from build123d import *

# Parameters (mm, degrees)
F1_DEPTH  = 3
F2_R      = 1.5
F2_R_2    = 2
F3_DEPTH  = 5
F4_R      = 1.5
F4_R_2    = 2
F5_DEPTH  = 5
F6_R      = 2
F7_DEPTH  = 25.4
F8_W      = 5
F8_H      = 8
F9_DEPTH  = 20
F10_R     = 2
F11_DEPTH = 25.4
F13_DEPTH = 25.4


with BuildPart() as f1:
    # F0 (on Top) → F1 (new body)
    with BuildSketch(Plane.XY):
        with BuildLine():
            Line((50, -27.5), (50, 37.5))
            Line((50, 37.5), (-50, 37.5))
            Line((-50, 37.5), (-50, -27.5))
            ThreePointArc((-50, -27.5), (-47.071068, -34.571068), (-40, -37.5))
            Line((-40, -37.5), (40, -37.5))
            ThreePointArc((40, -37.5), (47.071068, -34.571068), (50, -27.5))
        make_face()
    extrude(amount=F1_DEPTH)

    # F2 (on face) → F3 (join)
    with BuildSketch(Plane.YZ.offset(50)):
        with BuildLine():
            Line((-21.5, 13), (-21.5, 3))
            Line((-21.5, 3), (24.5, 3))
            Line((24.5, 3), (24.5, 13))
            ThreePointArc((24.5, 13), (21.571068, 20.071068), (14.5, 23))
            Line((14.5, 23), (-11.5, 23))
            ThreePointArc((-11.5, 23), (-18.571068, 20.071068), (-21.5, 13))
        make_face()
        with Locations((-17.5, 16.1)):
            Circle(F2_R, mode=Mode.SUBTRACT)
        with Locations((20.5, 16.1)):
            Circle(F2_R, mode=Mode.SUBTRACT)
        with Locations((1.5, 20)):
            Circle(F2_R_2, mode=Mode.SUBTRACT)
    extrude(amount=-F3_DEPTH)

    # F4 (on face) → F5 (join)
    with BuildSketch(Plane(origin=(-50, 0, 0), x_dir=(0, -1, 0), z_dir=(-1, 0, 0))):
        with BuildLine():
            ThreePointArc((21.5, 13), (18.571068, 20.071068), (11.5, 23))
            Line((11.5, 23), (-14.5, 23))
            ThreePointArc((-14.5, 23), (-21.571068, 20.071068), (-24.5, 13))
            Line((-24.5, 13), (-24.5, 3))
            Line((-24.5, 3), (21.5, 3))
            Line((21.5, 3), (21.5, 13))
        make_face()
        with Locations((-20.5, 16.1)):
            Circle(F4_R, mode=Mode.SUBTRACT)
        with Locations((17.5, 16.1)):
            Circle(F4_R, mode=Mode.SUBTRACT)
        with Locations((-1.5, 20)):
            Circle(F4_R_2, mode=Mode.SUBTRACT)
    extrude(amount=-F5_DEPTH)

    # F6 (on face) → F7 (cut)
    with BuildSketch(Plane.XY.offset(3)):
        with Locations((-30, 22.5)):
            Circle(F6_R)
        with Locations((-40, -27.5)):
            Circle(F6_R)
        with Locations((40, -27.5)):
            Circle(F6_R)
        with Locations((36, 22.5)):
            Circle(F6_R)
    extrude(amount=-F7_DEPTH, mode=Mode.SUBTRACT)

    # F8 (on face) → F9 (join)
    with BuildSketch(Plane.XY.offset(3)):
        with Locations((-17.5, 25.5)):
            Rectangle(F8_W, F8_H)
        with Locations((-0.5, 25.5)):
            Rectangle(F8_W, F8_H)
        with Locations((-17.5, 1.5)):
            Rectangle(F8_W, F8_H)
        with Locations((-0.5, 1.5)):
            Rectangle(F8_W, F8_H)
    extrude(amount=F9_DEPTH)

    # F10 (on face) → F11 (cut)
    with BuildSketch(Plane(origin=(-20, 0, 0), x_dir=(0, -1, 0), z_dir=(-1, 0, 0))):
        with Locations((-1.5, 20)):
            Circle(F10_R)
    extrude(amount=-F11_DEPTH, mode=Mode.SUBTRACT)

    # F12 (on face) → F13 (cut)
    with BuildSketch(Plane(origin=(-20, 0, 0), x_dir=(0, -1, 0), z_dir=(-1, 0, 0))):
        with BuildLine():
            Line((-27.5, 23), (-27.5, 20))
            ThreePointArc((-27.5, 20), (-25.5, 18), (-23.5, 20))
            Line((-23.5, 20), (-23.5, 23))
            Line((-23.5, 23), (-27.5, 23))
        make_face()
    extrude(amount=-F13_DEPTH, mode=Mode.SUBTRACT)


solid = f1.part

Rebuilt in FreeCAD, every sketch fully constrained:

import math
import FreeCAD as App
import Part
import Sketcher
from FreeCAD import Vector
Q = App.Units.Quantity

doc = App.newDocument("Part")
body = doc.addObject("PartDesign::Body", "Body")

# Sketch on XY plane
sketch1 = doc.addObject("Sketcher::SketchObject", "Sketch")
body.addObject(sketch1)
sketch1.AttachmentSupport = (doc.XY_Plane, [""])
sketch1.MapMode = "FlatFace"
sketch1.addGeometry([
    Part.LineSegment(Vector(50, -28, 0), Vector(50, 38, 0)),  # 0
    Part.LineSegment(Vector(50, 38, 0), Vector(-50, 38, 0)),  # 1
    Part.LineSegment(Vector(-50, 38, 0), Vector(-50, -28, 0)),  # 2
    Part.ArcOfCircle(Part.Circle(Vector(-40, -28, 0), Vector(0, 0, 1), 10), math.radians(180), math.radians(270)),  # 3
    Part.LineSegment(Vector(-40, -38, 0), Vector(40, -38, 0)),  # 4
    Part.ArcOfCircle(Part.Circle(Vector(40, -28, 0), Vector(0, 0, 1), 10), math.radians(-90), math.radians(0)),  # 5
], False)
sketch1.addConstraint([
    Sketcher.Constraint("Coincident", 0, 2, 1, 1),
    Sketcher.Constraint("Coincident", 1, 2, 2, 1),
    Sketcher.Constraint("Tangent", 2, 2, 3, 1),
    Sketcher.Constraint("Tangent", 3, 2, 4, 1),
    Sketcher.Constraint("Tangent", 4, 2, 5, 1),
    Sketcher.Constraint("Tangent", 5, 2, 0, 1),
    Sketcher.Constraint("Vertical", 0),
    Sketcher.Constraint("Horizontal", 1),
    Sketcher.Constraint("Vertical", 2),
    Sketcher.Constraint("Horizontal", 4),
    Sketcher.Constraint("Equal", 3, 5),
    Sketcher.Constraint("Radius", 3, Q("9.999999 mm")),
    Sketcher.Constraint("DistanceX", 1, 2, 1, 1, Q("100 mm")),
    Sketcher.Constraint("DistanceY", 0, 1, 0, 2, Q("65 mm")),
    Sketcher.Constraint("DistanceX", 3, 3, -1, 1, Q("40.000001 mm")),
    Sketcher.Constraint("DistanceY", 3, 3, -1, 1, Q("27.500001 mm")),
])
pad1 = doc.addObject("PartDesign::Pad", "Pad")
body.addObject(pad1)
pad1.Profile = sketch1
pad1.Length = 3

# Sketch on YZ plane
sketch2 = doc.addObject("Sketcher::SketchObject", "Sketch001")
body.addObject(sketch2)
sketch2.AttachmentSupport = (doc.YZ_Plane, [""])
sketch2.MapMode = "FlatFace"
sketch2.AttachmentOffset = App.Placement(Vector(0, 0, 50), App.Rotation())
sketch2.addGeometry([
    Part.LineSegment(Vector(-21.5, 13, 0), Vector(-21.5, 3, 0)),  # 0
    Part.LineSegment(Vector(-21.5, 3, 0), Vector(24.5, 3, 0)),  # 1
    Part.LineSegment(Vector(24.5, 3, 0), Vector(24.5, 13, 0)),  # 2
    Part.ArcOfCircle(Part.Circle(Vector(14.5, 13, 0), Vector(0, 0, 1), 10), math.radians(0), math.radians(90)),  # 3
    Part.LineSegment(Vector(14.5, 23, 0), Vector(-11.5, 23, 0)),  # 4
    Part.ArcOfCircle(Part.Circle(Vector(-11.5, 13, 0), Vector(0, 0, 1), 10), math.radians(90), math.radians(180)),  # 5
    Part.Circle(Vector(-17.5, 16.1, 0), Vector(0, 0, 1), 1.5),  # 6
    Part.Circle(Vector(20.5, 16.1, 0), Vector(0, 0, 1), 1.5),  # 7
    Part.Circle(Vector(1.5, 20, 0), Vector(0, 0, 1), 2),  # 8
], False)
sketch2.addConstraint([
    Sketcher.Constraint("Coincident", 0, 2, 1, 1),
    Sketcher.Constraint("Coincident", 1, 2, 2, 1),
    Sketcher.Constraint("Tangent", 2, 2, 3, 1),
    Sketcher.Constraint("Tangent", 3, 2, 4, 1),
    Sketcher.Constraint("Tangent", 4, 2, 5, 1),
    Sketcher.Constraint("Tangent", 5, 2, 0, 1),
    Sketcher.Constraint("Vertical", 0),
    Sketcher.Constraint("Horizontal", 1),
    Sketcher.Constraint("Vertical", 2),
    Sketcher.Constraint("Horizontal", 4),
    Sketcher.Constraint("Equal", 3, 5),
    Sketcher.Constraint("Equal", 6, 7),
    Sketcher.Constraint("Horizontal", 6, 3, 7, 3),
    Sketcher.Constraint("Diameter", 6, Q("3 mm")),
    Sketcher.Constraint("Diameter", 8, Q("4 mm")),
    Sketcher.Constraint("Radius", 3, Q("9.999999 mm")),
    Sketcher.Constraint("DistanceX", 1, 1, 1, 2, Q("46 mm")),
    Sketcher.Constraint("DistanceY", 0, 2, 0, 1, Q("10 mm")),
    Sketcher.Constraint("DistanceY", -1, 1, 3, 3, Q("13.000001 mm")),
    Sketcher.Constraint("DistanceY", -1, 1, 8, 3, Q("20 mm")),
    Sketcher.Constraint("DistanceX", 6, 3, 5, 3, Q("5.999999 mm")),
    Sketcher.Constraint("DistanceX", 3, 3, 7, 3, Q("5.999999 mm")),
    Sketcher.Constraint("DistanceX", 8, 3, 3, 3, Q("13.000001 mm")),
    Sketcher.Constraint("DistanceX", -1, 1, 3, 3, Q("14.500001 mm")),
    Sketcher.Constraint("DistanceY", -1, 1, 6, 3, Q("16.1 mm")),
])
pad2 = doc.addObject("PartDesign::Pad", "Pad001")
body.addObject(pad2)
pad2.Profile = sketch2
pad2.Length = 5
pad2.Reversed = True

# Sketch on YZ plane
sketch3 = doc.addObject("Sketcher::SketchObject", "Sketch002")
body.addObject(sketch3)
sketch3.AttachmentSupport = (doc.YZ_Plane, [""])
sketch3.MapMode = "FlatFace"
sketch3.AttachmentOffset = App.Placement(Vector(0, 0, -50), App.Rotation())
sketch3.addGeometry([
    Part.ArcOfCircle(Part.Circle(Vector(-11.5, 13, 0), Vector(0, 0, 1), 10), math.radians(90), math.radians(180)),  # 0
    Part.LineSegment(Vector(-11.5, 23, 0), Vector(14.5, 23, 0)),  # 1
    Part.ArcOfCircle(Part.Circle(Vector(14.5, 13, 0), Vector(0, 0, 1), 10), math.radians(0), math.radians(90)),  # 2
    Part.LineSegment(Vector(24.5, 13, 0), Vector(24.5, 3, 0)),  # 3
    Part.LineSegment(Vector(24.5, 3, 0), Vector(-21.5, 3, 0)),  # 4
    Part.LineSegment(Vector(-21.5, 3, 0), Vector(-21.5, 13, 0)),  # 5
    Part.Circle(Vector(20.5, 16.1, 0), Vector(0, 0, 1), 1.5),  # 6
    Part.Circle(Vector(-17.5, 16.1, 0), Vector(0, 0, 1), 1.5),  # 7
    Part.Circle(Vector(1.5, 20, 0), Vector(0, 0, 1), 2),  # 8
], False)
sketch3.addConstraint([
    Sketcher.Constraint("Tangent", 0, 1, 1, 1),
    Sketcher.Constraint("Tangent", 1, 2, 2, 2),
    Sketcher.Constraint("Tangent", 2, 1, 3, 1),
    Sketcher.Constraint("Coincident", 3, 2, 4, 1),
    Sketcher.Constraint("Coincident", 4, 2, 5, 1),
    Sketcher.Constraint("Tangent", 5, 2, 0, 2),
    Sketcher.Constraint("Horizontal", 1),
    Sketcher.Constraint("Vertical", 3),
    Sketcher.Constraint("Horizontal", 4),
    Sketcher.Constraint("Vertical", 5),
    Sketcher.Constraint("Equal", 0, 2),
    Sketcher.Constraint("Equal", 6, 7),
    Sketcher.Constraint("Horizontal", 6, 3, 7, 3),
    Sketcher.Constraint("Diameter", 6, Q("3 mm")),
    Sketcher.Constraint("Diameter", 8, Q("4 mm")),
    Sketcher.Constraint("Radius", 0, Q("9.999999 mm")),
    Sketcher.Constraint("DistanceX", 1, 1, 1, 2, Q("26 mm")),
    Sketcher.Constraint("DistanceY", 3, 2, 3, 1, Q("10 mm")),
    Sketcher.Constraint("DistanceY", -1, 1, 0, 3, Q("13.000001 mm")),
    Sketcher.Constraint("DistanceY", -1, 1, 8, 3, Q("20 mm")),
    Sketcher.Constraint("DistanceX", 2, 3, 6, 3, Q("5.999999 mm")),
    Sketcher.Constraint("DistanceX", 7, 3, 0, 3, Q("5.999999 mm")),
    Sketcher.Constraint("DistanceX", 0, 3, 8, 3, Q("13.000001 mm")),
    Sketcher.Constraint("DistanceX", 0, 3, -1, 1, Q("11.500001 mm")),
    Sketcher.Constraint("DistanceY", -1, 1, 6, 3, Q("16.1 mm")),
])
pad3 = doc.addObject("PartDesign::Pad", "Pad002")
body.addObject(pad3)
pad3.Profile = sketch3
pad3.Length = 5

# Sketch on XY plane
sketch4 = doc.addObject("Sketcher::SketchObject", "Sketch003")
body.addObject(sketch4)
sketch4.AttachmentSupport = (doc.XY_Plane, [""])
sketch4.MapMode = "FlatFace"
sketch4.AttachmentOffset = App.Placement(Vector(0, 0, 3), App.Rotation())
sketch4.addGeometry([
    Part.Circle(Vector(-30, 22.5, 0), Vector(0, 0, 1), 2),
    Part.Circle(Vector(-40, -27.5, 0), Vector(0, 0, 1), 2),
    Part.Circle(Vector(40, -27.5, 0), Vector(0, 0, 1), 2),
    Part.Circle(Vector(36, 22.5, 0), Vector(0, 0, 1), 2),
], False)
sketch4.addConstraint([
    Sketcher.Constraint("Equal", 0, 1),
    Sketcher.Constraint("Equal", 1, 2),
    Sketcher.Constraint("Equal", 2, 3),
    Sketcher.Constraint("Symmetric", 1, 3, 2, 3, -2),
    Sketcher.Constraint("Horizontal", 0, 3, 3, 3),
    Sketcher.Constraint("Diameter", 0, Q("4 mm")),
    Sketcher.Constraint("DistanceX", 0, 3, -1, 1, Q("30 mm")),
    Sketcher.Constraint("DistanceX", 1, 3, -1, 1, Q("40 mm")),
    Sketcher.Constraint("DistanceX", -1, 1, 3, 3, Q("36 mm")),
    Sketcher.Constraint("DistanceY", 1, 3, 0, 3, Q("50 mm")),
    Sketcher.Constraint("DistanceY", -1, 1, 0, 3, Q("22.5 mm")),
])
pocket1 = doc.addObject("PartDesign::Pocket", "Pocket")
body.addObject(pocket1)
pocket1.Profile = sketch4
pocket1.Length = 25.4

# Sketch on XY plane
sketch5 = doc.addObject("Sketcher::SketchObject", "Sketch004")
body.addObject(sketch5)
sketch5.AttachmentSupport = (doc.XY_Plane, [""])
sketch5.MapMode = "FlatFace"
sketch5.AttachmentOffset = App.Placement(Vector(0, 0, 3), App.Rotation())
sketch5.addGeometry([
    Part.LineSegment(Vector(-20, 30, 0), Vector(-20, 22, 0)),  # 0
    Part.LineSegment(Vector(-20, 22, 0), Vector(-15, 22, 0)),  # 1
    Part.LineSegment(Vector(-15, 22, 0), Vector(-15, 30, 0)),  # 2
    Part.LineSegment(Vector(-15, 30, 0), Vector(-20, 30, 0)),  # 3
    Part.LineSegment(Vector(-3, 30, 0), Vector(-3, 22, 0)),  # 4
    Part.LineSegment(Vector(-3, 22, 0), Vector(2, 22, 0)),  # 5
    Part.LineSegment(Vector(2, 22, 0), Vector(2, 30, 0)),  # 6
    Part.LineSegment(Vector(2, 30, 0), Vector(-3, 30, 0)),  # 7
    Part.LineSegment(Vector(-20, 6, 0), Vector(-20, -2, 0)),  # 8
    Part.LineSegment(Vector(-20, -2, 0), Vector(-15, -2, 0)),  # 9
    Part.LineSegment(Vector(-15, -2, 0), Vector(-15, 6, 0)),  # 10
    Part.LineSegment(Vector(-15, 6, 0), Vector(-20, 6, 0)),  # 11
    Part.LineSegment(Vector(-3, 6, 0), Vector(-3, -2, 0)),  # 12
    Part.LineSegment(Vector(-3, -2, 0), Vector(2, -2, 0)),  # 13
    Part.LineSegment(Vector(2, -2, 0), Vector(2, 6, 0)),  # 14
    Part.LineSegment(Vector(2, 6, 0), Vector(-3, 6, 0)),  # 15
], False)
sketch5.addConstraint([
    Sketcher.Constraint("Coincident", 0, 2, 1, 1),
    Sketcher.Constraint("Coincident", 1, 2, 2, 1),
    Sketcher.Constraint("Coincident", 2, 2, 3, 1),
    Sketcher.Constraint("Coincident", 3, 2, 0, 1),
    Sketcher.Constraint("Coincident", 4, 2, 5, 1),
    Sketcher.Constraint("Coincident", 5, 2, 6, 1),
    Sketcher.Constraint("Coincident", 6, 2, 7, 1),
    Sketcher.Constraint("Coincident", 7, 2, 4, 1),
    Sketcher.Constraint("Coincident", 8, 2, 9, 1),
    Sketcher.Constraint("Coincident", 9, 2, 10, 1),
    Sketcher.Constraint("Coincident", 10, 2, 11, 1),
    Sketcher.Constraint("Coincident", 11, 2, 8, 1),
    Sketcher.Constraint("Coincident", 12, 2, 13, 1),
    Sketcher.Constraint("Coincident", 13, 2, 14, 1),
    Sketcher.Constraint("Coincident", 14, 2, 15, 1),
    Sketcher.Constraint("Coincident", 15, 2, 12, 1),
    Sketcher.Constraint("Vertical", 0),
    Sketcher.Constraint("Horizontal", 1),
    Sketcher.Constraint("Vertical", 2),
    Sketcher.Constraint("Horizontal", 3),
    Sketcher.Constraint("Vertical", 4),
    Sketcher.Constraint("Horizontal", 5),
    Sketcher.Constraint("Vertical", 6),
    Sketcher.Constraint("Horizontal", 7),
    Sketcher.Constraint("Vertical", 8),
    Sketcher.Constraint("Horizontal", 9),
    Sketcher.Constraint("Vertical", 10),
    Sketcher.Constraint("Horizontal", 11),
    Sketcher.Constraint("Vertical", 12),
    Sketcher.Constraint("Horizontal", 13),
    Sketcher.Constraint("Vertical", 14),
    Sketcher.Constraint("Horizontal", 15),
    Sketcher.Constraint("Horizontal", 1, 2, 4, 2),
    Sketcher.Constraint("Horizontal", 3, 2, 6, 2),
    Sketcher.Constraint("Horizontal", 9, 2, 12, 2),
    Sketcher.Constraint("Horizontal", 11, 2, 14, 2),
    Sketcher.Constraint("Vertical", 3, 2, 8, 2),
    Sketcher.Constraint("Vertical", 2, 2, 9, 2),
    Sketcher.Constraint("Vertical", 7, 2, 12, 2),
    Sketcher.Constraint("Vertical", 6, 2, 13, 2),
    Sketcher.Constraint("Equal", 3, 5),
    Sketcher.Constraint("Equal", 6, 8),
    Sketcher.Constraint("DistanceX", 1, 1, 1, 2, Q("5 mm")),
    Sketcher.Constraint("DistanceY", 0, 2, 0, 1, Q("8 mm")),
    Sketcher.Constraint("DistanceX", 0, 2, -1, 1, Q("20 mm")),
    Sketcher.Constraint("DistanceX", 4, 2, -1, 1, Q("3 mm")),
    Sketcher.Constraint("DistanceY", 8, 2, 0, 2, Q("24 mm")),
    Sketcher.Constraint("DistanceY", -1, 1, 0, 2, Q("21.5 mm")),
])
pad4 = doc.addObject("PartDesign::Pad", "Pad003")
body.addObject(pad4)
pad4.Profile = sketch5
pad4.Length = 20

# Sketch on YZ plane
sketch6 = doc.addObject("Sketcher::SketchObject", "Sketch005")
body.addObject(sketch6)
sketch6.AttachmentSupport = (doc.YZ_Plane, [""])
sketch6.MapMode = "FlatFace"
sketch6.AttachmentOffset = App.Placement(Vector(0, 0, -20), App.Rotation())
sketch6.addGeometry(Part.Circle(Vector(1.5, 20, 0), Vector(0, 0, 1), 2), False)
sketch6.addConstraint([
    Sketcher.Constraint("Diameter", 0, Q("4 mm")),
    Sketcher.Constraint("DistanceY", -1, 1, 0, 3, Q("20 mm")),
    Sketcher.Constraint("DistanceX", -1, 1, 0, 3, Q("1.5 mm")),
])
pocket2 = doc.addObject("PartDesign::Pocket", "Pocket001")
body.addObject(pocket2)
pocket2.Profile = sketch6
pocket2.Length = 25.4
pocket2.Reversed = True

# Sketch on YZ plane
sketch7 = doc.addObject("Sketcher::SketchObject", "Sketch006")
body.addObject(sketch7)
sketch7.AttachmentSupport = (doc.YZ_Plane, [""])
sketch7.MapMode = "FlatFace"
sketch7.AttachmentOffset = App.Placement(Vector(0, 0, -20), App.Rotation())
sketch7.addGeometry([
    Part.LineSegment(Vector(27.5, 23, 0), Vector(27.5, 20, 0)),
    Part.ArcOfCircle(Part.Circle(Vector(25.5, 20, 0), Vector(0, 0, 1), 2), math.radians(180), math.radians(360)),
    Part.LineSegment(Vector(23.5, 20, 0), Vector(23.5, 23, 0)),
    Part.LineSegment(Vector(23.5, 23, 0), Vector(27.5, 23, 0)),
], False)
sketch7.addConstraint([
    Sketcher.Constraint("Tangent", 0, 2, 1, 2),
    Sketcher.Constraint("Tangent", 1, 1, 2, 1),
    Sketcher.Constraint("Coincident", 2, 2, 3, 1),
    Sketcher.Constraint("Coincident", 3, 2, 0, 1),
    Sketcher.Constraint("Vertical", 0),
    Sketcher.Constraint("Vertical", 2),
    Sketcher.Constraint("Horizontal", 3),
    Sketcher.Constraint("Radius", 1, Q("2 mm")),
    Sketcher.Constraint("DistanceY", 0, 2, 0, 1, Q("3 mm")),
    Sketcher.Constraint("DistanceY", -1, 1, 1, 3, Q("20 mm")),
    Sketcher.Constraint("DistanceX", -1, 1, 1, 3, Q("25.5 mm")),
])
pocket3 = doc.addObject("PartDesign::Pocket", "Pocket002")
body.addObject(pocket3)
pocket3.Profile = sketch7
pocket3.Length = 25.4
pocket3.Reversed = True

doc.recompute()
